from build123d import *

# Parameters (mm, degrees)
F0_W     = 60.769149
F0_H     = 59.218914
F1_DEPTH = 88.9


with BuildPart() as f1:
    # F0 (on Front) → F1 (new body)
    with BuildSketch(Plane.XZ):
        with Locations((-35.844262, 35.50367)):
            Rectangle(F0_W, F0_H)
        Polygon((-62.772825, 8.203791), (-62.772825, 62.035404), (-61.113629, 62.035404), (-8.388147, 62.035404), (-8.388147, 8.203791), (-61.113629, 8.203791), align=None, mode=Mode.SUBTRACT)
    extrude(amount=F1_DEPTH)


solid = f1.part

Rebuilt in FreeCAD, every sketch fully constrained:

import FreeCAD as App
import Part
import Sketcher

V = App.Vector
Q = App.Units.Quantity


def add_polygon(sketch, points):
    """Adds a closed chain of lines whose ends are joined by coincident constraints."""
    first, n = sketch.GeometryCount, len(points)
    for a, b in zip(points, points[1:] + points[:1]):
        sketch.addGeometry(Part.LineSegment(App.Vector(*a, 0), App.Vector(*b, 0)), False)
    for i in range(n):
        sketch.addConstraint(Sketcher.Constraint("Coincident", first + i, 2, first + (i + 1) % n, 1))

doc = App.newDocument("Part")
body = doc.addObject("PartDesign::Body", "Body")

# Sketch on XZ plane
sketch1 = body.newObject("Sketcher::SketchObject", "Sketch")
sketch1.AttachmentSupport = (doc.getObject("XZ_Plane"), [""])
sketch1.MapMode = "FlatFace"
add_polygon(sketch1, [(-66.228836, 65.113127), (-66.228836, 5.894213), (-5.459688, 5.894213), (-5.459688, 65.113127)])  # lines 0-3
add_polygon(sketch1, [(-8.388147, 8.203791), (-62.772825, 8.203791), (-62.772825, 62.035404), (-8.388147, 62.035404)])  # lines 4-7
sketch1.addConstraint([
    Sketcher.Constraint("Vertical", 0),
    Sketcher.Constraint("Horizontal", 1),
    Sketcher.Constraint("Vertical", 2),
    Sketcher.Constraint("Horizontal", 3),
    Sketcher.Constraint("Horizontal", 4),
    Sketcher.Constraint("Vertical", 5),
    Sketcher.Constraint("Horizontal", 6),
    Sketcher.Constraint("Vertical", 7),
    Sketcher.Constraint("DistanceX", 1, 1, 1, 2, 60.769149),
    Sketcher.Constraint("DistanceX", 4, 2, 4, 1, 54.384678),
    Sketcher.Constraint("DistanceY", 0, 2, 0, 1, 59.218914),
    Sketcher.Constraint("DistanceY", 5, 1, 5, 2, 53.831613),
    Sketcher.Constraint("DistanceY", -1, 1, 4, 2, 8.203791),
    Sketcher.Constraint("DistanceX", 0, 2, 4, 2, 3.456012),
    Sketcher.Constraint("DistanceY", 0, 2, 4, 2, 2.309578),
    Sketcher.Constraint("DistanceX", 0, 2, -1, 1, 66.228836),
])
pad1 = body.newObject("PartDesign::Pad", "Pad")
pad1.Profile = sketch1
pad1.Length = Q("3.5 in")

doc.recompute()
